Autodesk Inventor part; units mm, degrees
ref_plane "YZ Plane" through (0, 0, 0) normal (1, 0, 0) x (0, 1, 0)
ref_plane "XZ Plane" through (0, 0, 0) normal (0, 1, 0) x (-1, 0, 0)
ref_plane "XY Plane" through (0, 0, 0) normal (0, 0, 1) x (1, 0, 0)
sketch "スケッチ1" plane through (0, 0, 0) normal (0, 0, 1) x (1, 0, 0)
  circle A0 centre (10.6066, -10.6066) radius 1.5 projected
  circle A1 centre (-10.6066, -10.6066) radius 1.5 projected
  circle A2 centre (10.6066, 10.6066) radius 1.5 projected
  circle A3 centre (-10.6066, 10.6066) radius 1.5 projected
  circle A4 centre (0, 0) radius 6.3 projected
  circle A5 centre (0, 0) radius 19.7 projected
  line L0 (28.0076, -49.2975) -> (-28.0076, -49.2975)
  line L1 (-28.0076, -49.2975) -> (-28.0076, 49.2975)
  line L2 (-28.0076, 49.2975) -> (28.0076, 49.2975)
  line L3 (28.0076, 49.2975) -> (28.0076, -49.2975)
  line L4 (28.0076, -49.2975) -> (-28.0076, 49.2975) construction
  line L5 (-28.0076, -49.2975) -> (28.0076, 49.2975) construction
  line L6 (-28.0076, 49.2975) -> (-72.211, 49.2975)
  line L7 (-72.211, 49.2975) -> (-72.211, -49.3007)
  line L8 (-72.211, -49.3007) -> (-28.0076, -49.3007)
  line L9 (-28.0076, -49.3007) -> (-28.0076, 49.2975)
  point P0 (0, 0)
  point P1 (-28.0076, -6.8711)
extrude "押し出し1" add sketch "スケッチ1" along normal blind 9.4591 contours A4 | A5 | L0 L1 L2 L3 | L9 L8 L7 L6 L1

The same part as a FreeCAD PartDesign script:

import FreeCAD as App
import Part
import Sketcher

V = App.Vector
Q = App.Units.Quantity

doc = App.newDocument("Part")
body = doc.addObject("PartDesign::Body", "Body")

# Sketch on XY plane
sketch1 = doc.addObject("Sketcher::SketchObject", "Sketch")
body.addObject(sketch1)
sketch1.AttachmentSupport = (doc.XY_Plane, [""])
sketch1.MapMode = "FlatFace"
sketch1.addGeometry([
    Part.LineSegment(V(-28.0076, -49.2975, 0), V(28.0076, -49.2975, 0)),  # 0
    Part.LineSegment(V(28.0076, -49.2975, 0), V(28.0076, 49.2975, 0)),  # 1
    Part.LineSegment(V(28.0076, 49.2975, 0), V(-72.211, 49.2975, 0)),  # 2
    Part.LineSegment(V(-72.211, 49.2975, 0), V(-72.211, -49.3007, 0)),  # 3
    Part.LineSegment(V(-72.211, -49.3007, 0), V(-28.0076, -49.3007, 0)),  # 4
    Part.LineSegment(V(-28.0076, -49.3007, 0), V(-28.0076, -49.2975, 0)),  # 5
    Part.Circle(V(-10.6066, -10.6066, 0), V(0, 0, 1), 1.5),  # 6
    Part.Circle(V(10.6066, -10.6066, 0), V(0, 0, 1), 1.5),  # 7
    Part.Circle(V(-10.6066, 10.6066, 0), V(0, 0, 1), 1.5),  # 8
    Part.Circle(V(10.6066, 10.6066, 0), V(0, 0, 1), 1.5),  # 9
], False)
sketch1.addConstraint([
    Sketcher.Constraint("Coincident", 0, 2, 1, 1),
    Sketcher.Constraint("Coincident", 1, 2, 2, 1),
    Sketcher.Constraint("Coincident", 2, 2, 3, 1),
    Sketcher.Constraint("Coincident", 3, 2, 4, 1),
    Sketcher.Constraint("Coincident", 4, 2, 5, 1),
    Sketcher.Constraint("Coincident", 5, 2, 0, 1),
    Sketcher.Constraint("Horizontal", 0),
    Sketcher.Constraint("Vertical", 1),
    Sketcher.Constraint("Horizontal", 2),
    Sketcher.Constraint("Vertical", 3),
    Sketcher.Constraint("Horizontal", 4),
    Sketcher.Constraint("Vertical", 5),
    Sketcher.Constraint("Equal", 6, 7),
    Sketcher.Constraint("Equal", 7, 8),
    Sketcher.Constraint("Equal", 8, 9),
    Sketcher.Constraint("Symmetric", 7, 3, 8, 3, -1, 1),
    Sketcher.Constraint("Symmetric", 6, 3, 9, 3, -1, 1),
    Sketcher.Constraint("Symmetric", 1, 2, 5, 2, -1, 1),
    Sketcher.Constraint("Symmetric", 6, 3, 7, 3, -2),
    Sketcher.Constraint("Diameter", 6, Q("3 mm")),
    Sketcher.Constraint("DistanceY", 1, 1, 1, 2, Q("98.595 mm")),
    Sketcher.Constraint("DistanceX", 0, 1, 0, 2, Q("56.0152 mm")),
    Sketcher.Constraint("DistanceX", 2, 2, 2, 1, Q("100.2186 mm")),
    Sketcher.Constraint("DistanceY", 3, 2, 3, 1, Q("98.5982 mm")),
    Sketcher.Constraint("DistanceX", 7, 3, 0, 2, Q("17.401 mm")),
    Sketcher.Constraint("DistanceY", 0, 2, 7, 3, Q("38.691 mm")),
])
pad1 = doc.addObject("PartDesign::Pad", "Pad")
body.addObject(pad1)
pad1.Profile = sketch1
pad1.Length = 9.4591

doc.recompute()
